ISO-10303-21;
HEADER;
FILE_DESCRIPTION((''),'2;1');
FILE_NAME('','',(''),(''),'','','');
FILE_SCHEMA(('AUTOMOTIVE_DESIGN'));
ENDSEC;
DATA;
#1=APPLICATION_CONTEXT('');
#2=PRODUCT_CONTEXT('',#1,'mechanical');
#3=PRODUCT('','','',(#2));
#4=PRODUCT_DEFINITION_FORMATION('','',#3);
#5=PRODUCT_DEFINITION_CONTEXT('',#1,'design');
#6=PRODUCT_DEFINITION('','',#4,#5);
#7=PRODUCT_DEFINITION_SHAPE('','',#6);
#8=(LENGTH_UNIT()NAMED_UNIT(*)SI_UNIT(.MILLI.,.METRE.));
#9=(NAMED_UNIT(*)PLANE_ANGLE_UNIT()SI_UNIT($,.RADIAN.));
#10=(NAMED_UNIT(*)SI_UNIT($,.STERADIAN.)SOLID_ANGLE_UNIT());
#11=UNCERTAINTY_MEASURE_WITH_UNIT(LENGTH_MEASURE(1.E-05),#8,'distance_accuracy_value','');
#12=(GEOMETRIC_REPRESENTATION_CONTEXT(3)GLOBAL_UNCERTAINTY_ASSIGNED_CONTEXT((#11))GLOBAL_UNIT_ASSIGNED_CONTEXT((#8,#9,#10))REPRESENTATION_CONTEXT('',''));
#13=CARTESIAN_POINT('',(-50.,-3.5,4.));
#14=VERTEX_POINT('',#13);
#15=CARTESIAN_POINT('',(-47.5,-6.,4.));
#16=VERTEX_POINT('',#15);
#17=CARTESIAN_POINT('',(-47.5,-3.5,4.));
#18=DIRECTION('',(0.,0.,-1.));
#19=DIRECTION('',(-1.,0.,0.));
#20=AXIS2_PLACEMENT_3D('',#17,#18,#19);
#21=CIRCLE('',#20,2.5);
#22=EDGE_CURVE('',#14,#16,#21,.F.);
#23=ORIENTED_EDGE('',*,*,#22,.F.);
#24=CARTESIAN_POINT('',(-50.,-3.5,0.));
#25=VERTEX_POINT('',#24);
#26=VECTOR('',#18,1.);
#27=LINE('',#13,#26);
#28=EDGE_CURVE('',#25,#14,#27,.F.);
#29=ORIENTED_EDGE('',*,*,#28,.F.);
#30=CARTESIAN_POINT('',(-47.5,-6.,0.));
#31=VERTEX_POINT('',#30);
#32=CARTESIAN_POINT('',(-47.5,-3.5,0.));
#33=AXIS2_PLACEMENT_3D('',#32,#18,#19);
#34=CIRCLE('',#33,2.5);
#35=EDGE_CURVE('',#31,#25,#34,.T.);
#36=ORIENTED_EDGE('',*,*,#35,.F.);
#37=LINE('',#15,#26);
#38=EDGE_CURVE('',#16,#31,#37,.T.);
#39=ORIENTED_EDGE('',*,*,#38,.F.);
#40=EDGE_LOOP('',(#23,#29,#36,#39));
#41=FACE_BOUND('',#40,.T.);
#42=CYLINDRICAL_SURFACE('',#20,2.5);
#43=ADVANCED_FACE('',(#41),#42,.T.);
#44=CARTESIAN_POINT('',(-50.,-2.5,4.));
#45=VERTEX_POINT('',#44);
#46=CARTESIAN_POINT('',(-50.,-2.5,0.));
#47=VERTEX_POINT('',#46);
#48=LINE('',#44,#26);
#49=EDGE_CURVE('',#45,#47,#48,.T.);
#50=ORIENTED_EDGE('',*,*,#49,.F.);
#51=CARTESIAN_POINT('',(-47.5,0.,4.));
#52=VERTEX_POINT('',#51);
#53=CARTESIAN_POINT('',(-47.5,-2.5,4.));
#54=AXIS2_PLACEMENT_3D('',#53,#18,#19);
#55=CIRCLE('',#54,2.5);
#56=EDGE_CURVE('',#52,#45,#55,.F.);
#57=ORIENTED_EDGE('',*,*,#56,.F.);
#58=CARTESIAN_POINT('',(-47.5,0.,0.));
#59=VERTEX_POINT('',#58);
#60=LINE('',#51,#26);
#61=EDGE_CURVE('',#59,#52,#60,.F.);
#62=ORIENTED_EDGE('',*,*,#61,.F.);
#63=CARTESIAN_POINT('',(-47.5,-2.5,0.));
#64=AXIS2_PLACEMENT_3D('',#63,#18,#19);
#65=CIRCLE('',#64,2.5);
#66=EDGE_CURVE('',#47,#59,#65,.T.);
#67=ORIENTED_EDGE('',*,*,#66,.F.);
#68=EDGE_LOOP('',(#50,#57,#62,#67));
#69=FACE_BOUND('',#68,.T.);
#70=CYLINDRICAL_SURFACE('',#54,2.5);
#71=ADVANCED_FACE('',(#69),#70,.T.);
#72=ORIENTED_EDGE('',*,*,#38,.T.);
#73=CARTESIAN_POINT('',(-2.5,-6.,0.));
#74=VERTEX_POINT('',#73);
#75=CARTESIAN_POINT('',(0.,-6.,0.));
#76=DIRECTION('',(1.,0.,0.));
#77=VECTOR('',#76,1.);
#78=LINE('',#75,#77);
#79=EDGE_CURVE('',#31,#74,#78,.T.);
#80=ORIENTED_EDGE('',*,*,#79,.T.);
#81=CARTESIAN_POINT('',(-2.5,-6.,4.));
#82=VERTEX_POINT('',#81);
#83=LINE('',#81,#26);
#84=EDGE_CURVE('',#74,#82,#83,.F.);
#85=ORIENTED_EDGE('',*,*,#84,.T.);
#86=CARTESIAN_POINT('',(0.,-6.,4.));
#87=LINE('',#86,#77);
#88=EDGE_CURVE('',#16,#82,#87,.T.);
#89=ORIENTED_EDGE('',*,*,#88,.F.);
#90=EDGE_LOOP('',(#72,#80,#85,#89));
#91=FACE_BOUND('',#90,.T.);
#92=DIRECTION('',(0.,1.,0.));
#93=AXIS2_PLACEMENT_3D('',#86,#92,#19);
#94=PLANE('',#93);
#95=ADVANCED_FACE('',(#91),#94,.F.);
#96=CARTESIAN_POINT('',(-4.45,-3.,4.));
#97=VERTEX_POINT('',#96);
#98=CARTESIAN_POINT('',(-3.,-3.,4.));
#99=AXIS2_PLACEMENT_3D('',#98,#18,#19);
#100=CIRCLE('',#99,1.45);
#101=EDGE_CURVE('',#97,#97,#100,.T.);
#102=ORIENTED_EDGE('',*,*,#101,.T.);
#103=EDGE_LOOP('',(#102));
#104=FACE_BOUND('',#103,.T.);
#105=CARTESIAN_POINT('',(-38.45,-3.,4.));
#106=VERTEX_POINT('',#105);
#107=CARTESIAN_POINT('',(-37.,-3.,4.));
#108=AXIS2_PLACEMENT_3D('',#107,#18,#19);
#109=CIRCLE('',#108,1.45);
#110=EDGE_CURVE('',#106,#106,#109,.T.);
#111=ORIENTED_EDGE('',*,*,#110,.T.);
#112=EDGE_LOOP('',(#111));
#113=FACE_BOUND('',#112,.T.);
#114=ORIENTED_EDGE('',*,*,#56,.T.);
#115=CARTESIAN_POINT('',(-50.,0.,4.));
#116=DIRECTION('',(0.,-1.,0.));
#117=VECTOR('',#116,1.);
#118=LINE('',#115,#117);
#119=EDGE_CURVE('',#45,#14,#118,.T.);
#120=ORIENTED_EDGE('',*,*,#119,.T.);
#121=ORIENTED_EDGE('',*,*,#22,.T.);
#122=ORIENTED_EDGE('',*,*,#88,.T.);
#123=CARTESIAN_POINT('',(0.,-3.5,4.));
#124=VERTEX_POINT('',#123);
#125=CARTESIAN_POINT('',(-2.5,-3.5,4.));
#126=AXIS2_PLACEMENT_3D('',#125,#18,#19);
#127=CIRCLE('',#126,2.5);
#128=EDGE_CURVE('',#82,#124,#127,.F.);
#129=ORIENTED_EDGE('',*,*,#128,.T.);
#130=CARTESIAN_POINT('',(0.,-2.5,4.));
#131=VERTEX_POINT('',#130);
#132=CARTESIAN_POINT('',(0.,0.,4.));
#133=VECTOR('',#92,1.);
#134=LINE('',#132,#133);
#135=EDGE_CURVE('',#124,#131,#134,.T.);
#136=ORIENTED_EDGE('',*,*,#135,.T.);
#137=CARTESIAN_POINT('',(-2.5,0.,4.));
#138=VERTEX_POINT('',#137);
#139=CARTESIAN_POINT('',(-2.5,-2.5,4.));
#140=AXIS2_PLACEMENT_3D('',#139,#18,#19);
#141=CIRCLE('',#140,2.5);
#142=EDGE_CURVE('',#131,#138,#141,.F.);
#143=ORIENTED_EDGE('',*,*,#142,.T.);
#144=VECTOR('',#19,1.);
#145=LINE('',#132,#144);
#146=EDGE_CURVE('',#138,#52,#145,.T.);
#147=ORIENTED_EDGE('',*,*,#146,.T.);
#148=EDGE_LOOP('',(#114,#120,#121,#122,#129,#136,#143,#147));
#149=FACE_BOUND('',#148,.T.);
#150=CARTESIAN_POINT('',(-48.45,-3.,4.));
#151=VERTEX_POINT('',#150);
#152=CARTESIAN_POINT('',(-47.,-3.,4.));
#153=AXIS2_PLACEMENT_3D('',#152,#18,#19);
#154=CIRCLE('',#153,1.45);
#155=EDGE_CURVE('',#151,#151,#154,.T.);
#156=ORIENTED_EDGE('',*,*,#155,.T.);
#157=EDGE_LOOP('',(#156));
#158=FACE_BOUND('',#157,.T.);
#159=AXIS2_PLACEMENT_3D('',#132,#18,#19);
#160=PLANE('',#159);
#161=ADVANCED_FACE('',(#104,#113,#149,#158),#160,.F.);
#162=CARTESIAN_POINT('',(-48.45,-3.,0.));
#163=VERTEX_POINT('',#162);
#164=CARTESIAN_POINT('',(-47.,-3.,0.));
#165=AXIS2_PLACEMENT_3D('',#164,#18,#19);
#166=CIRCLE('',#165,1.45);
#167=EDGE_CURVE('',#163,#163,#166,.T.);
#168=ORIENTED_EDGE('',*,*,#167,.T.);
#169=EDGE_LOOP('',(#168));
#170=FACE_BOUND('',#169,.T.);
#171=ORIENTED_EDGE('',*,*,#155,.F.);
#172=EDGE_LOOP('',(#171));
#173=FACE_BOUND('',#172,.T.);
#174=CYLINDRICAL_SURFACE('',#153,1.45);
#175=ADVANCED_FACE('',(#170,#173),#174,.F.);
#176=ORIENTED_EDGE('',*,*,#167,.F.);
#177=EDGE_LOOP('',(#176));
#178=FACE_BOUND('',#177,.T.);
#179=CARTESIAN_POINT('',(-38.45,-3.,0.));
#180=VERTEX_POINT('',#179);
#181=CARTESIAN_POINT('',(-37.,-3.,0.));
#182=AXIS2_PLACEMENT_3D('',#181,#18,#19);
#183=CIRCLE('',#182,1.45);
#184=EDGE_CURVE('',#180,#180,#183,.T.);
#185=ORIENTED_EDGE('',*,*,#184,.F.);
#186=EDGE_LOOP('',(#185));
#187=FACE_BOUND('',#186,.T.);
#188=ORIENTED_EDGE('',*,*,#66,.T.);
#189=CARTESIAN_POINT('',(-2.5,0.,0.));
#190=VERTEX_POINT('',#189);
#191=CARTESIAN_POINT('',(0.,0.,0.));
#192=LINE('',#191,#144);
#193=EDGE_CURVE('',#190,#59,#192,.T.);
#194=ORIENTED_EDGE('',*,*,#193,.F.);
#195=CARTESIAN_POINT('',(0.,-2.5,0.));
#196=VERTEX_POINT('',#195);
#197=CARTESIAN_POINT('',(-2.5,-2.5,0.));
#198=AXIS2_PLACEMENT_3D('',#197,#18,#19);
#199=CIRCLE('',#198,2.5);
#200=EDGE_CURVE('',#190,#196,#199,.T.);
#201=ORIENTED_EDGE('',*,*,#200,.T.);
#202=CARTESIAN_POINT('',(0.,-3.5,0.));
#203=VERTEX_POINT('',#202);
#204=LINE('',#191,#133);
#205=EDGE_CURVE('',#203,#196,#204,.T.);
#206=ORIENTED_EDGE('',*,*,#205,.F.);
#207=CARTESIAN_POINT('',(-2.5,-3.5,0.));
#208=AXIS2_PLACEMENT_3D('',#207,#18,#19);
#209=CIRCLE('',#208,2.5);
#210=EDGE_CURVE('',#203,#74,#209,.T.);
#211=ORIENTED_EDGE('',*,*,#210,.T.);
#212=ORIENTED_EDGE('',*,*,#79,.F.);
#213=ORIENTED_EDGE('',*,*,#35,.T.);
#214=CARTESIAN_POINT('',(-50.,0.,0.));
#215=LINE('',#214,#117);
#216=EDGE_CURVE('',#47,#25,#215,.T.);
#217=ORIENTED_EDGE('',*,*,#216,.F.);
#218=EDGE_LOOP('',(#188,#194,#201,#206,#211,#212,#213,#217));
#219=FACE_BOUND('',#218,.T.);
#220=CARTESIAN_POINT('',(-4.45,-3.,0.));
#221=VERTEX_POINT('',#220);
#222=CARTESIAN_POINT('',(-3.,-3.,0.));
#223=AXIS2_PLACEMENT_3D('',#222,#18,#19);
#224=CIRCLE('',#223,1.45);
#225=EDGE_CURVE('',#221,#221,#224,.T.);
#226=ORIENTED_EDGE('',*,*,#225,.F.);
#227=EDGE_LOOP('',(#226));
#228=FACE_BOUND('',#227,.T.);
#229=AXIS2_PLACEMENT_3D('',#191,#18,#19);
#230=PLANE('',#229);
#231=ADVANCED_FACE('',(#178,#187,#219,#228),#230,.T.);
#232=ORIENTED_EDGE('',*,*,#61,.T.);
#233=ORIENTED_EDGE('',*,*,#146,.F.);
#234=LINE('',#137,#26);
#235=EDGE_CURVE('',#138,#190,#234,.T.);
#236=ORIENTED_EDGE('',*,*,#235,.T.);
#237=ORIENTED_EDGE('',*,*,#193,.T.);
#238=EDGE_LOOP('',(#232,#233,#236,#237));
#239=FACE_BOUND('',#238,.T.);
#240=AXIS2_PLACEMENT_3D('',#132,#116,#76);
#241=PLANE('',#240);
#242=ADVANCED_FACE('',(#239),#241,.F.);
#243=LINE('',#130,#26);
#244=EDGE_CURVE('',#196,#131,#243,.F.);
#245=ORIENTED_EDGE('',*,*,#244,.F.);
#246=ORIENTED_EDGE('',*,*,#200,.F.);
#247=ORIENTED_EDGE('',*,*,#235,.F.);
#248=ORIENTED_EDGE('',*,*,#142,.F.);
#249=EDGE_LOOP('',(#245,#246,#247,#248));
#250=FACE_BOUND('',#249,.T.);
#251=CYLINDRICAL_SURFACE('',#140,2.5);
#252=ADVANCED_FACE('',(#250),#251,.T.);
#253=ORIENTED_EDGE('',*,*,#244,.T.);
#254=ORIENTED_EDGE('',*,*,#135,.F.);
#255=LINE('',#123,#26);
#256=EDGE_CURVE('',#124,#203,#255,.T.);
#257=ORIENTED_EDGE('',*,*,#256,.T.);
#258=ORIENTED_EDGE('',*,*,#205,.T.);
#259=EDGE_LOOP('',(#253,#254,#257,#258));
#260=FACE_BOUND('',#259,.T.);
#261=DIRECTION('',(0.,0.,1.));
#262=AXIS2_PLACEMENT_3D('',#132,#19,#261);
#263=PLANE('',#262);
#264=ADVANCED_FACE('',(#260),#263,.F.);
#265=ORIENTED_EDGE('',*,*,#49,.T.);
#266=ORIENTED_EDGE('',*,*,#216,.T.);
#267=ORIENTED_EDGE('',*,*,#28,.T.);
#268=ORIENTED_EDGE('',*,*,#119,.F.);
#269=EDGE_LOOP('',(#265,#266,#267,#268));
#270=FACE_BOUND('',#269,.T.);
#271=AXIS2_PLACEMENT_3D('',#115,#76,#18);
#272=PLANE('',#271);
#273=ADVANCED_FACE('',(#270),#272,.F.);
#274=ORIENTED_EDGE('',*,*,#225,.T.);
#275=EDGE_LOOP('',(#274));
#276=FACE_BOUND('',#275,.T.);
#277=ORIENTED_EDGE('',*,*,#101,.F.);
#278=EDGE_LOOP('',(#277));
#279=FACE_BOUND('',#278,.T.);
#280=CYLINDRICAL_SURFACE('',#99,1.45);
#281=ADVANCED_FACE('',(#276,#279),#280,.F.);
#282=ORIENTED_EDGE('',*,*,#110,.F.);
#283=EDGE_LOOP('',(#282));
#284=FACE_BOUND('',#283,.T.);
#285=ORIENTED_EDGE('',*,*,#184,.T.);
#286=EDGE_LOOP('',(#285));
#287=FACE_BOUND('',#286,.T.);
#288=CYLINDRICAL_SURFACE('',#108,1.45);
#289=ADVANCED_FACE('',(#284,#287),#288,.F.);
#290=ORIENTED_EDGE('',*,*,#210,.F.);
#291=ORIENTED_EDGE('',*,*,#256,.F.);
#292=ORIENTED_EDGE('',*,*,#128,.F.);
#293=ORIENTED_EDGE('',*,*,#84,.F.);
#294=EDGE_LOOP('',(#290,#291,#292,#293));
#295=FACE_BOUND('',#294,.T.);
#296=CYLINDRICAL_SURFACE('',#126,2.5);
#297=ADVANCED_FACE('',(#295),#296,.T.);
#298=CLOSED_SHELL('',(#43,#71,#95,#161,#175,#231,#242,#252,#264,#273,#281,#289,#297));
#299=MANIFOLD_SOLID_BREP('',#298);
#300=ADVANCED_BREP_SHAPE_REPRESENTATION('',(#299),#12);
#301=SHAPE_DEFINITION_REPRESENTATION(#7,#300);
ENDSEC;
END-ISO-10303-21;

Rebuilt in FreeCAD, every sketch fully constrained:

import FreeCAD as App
import Part
import Sketcher

V = App.Vector


def edges_at(feature, points):
    """Names of the edges that pass closest to the given points."""
    edges = feature.Shape.Edges
    near = lambda p: min(range(len(edges)), key=lambda i: edges[i].distToShape(Part.Vertex(*p))[0])
    return sorted({f"Edge{near(p) + 1}" for p in points})

doc = App.newDocument("Part")
params = doc.addObject("Spreadsheet::Sheet", "Params")
for row, (alias, value) in enumerate([
    ("sketch1_width", "50 mm"),
    ("sketch1_height", "6 mm"),
    ("pad1_length", "4 mm"),
    ("sketch2_diameter", "2.9 mm"),
    ("fillet_radius", "2.5 mm"),
    ("sketch3_diameter", "2.9 mm"),
], start=1):
    params.set(f"A{row}", alias)
    params.set(f"B{row}", "=" + value)
    params.setAlias(f"B{row}", alias)

body = doc.addObject("PartDesign::Body", "Body")

# Sketch on XY plane
sketch1 = doc.addObject("Sketcher::SketchObject", "Sketch")
body.addObject(sketch1)
sketch1.AttachmentSupport = (doc.XY_Plane, [""])
sketch1.MapMode = "FlatFace"
sketch1.addGeometry([
    Part.LineSegment(V(-50, 0, 0), V(-50, -6, 0)),
    Part.LineSegment(V(-50, -6, 0), V(0, -6, 0)),
    Part.LineSegment(V(0, -6, 0), V(0, 0, 0)),
    Part.LineSegment(V(0, 0, 0), V(-50, 0, 0)),
], False)
sketch1.addConstraint([
    Sketcher.Constraint("Coincident", 0, 2, 1, 1),
    Sketcher.Constraint("Coincident", 1, 2, 2, 1),
    Sketcher.Constraint("Coincident", 2, 2, 3, 1),
    Sketcher.Constraint("Coincident", 3, 2, 0, 1),
    Sketcher.Constraint("Vertical", 0),
    Sketcher.Constraint("Horizontal", 1),
    Sketcher.Constraint("Vertical", 2),
    Sketcher.Constraint("Horizontal", 3),
    Sketcher.Constraint("Coincident", 2, 2, -1, 1),
    Sketcher.Constraint("DistanceX", 1, 1, 1, 2, 50.0),
    Sketcher.Constraint("DistanceY", 0, 2, 0, 1, 6.0),
])
sketch1.setExpression("Constraints[9]", "Params.sketch1_width")
sketch1.setExpression("Constraints[10]", "Params.sketch1_height")
pad1 = doc.addObject("PartDesign::Pad", "Pad")
body.addObject(pad1)
pad1.Profile = sketch1
pad1.setExpression("Length", "Params.pad1_length")

# Sketch on XY plane
sketch2 = doc.addObject("Sketcher::SketchObject", "Sketch001")
body.addObject(sketch2)
sketch2.AttachmentSupport = (doc.XY_Plane, [""])
sketch2.MapMode = "FlatFace"
sketch2.addGeometry([
    Part.Circle(V(-3, -3, 0), V(0, 0, 1), 1.4),
    Part.Circle(V(-37, -3, 0), V(0, 0, 1), 1.4),
], False)
sketch2.addConstraint([
    Sketcher.Constraint("Equal", 0, 1),
    Sketcher.Constraint("Horizontal", 0, 3, 1, 3),
    Sketcher.Constraint("Diameter", 0, 2.9),
    Sketcher.Constraint("DistanceX", 0, 3, -1, 1, 3.0),
    Sketcher.Constraint("DistanceY", 0, 3, -1, 1, 3.0),
    Sketcher.Constraint("DistanceX", 1, 3, -1, 1, 37.0),
])
sketch2.setExpression("Constraints[2]", "Params.sketch2_diameter")
pocket1 = doc.addObject("PartDesign::Pocket", "Pocket")
body.addObject(pocket1)
pocket1.Profile = sketch2
pocket1.Type = "ThroughAll"
pocket1.Reversed = True
doc.recompute()

fillet = doc.addObject("PartDesign::Fillet", "Fillet")
body.addObject(fillet)
fillet.Base = (pocket1, edges_at(pocket1, [
    (0, -6, 2),
    (-50, -6, 2),
    (-50, 0, 2),
    (0, 0, 2),
]))
fillet.setExpression("Radius", "Params.fillet_radius")

# Sketch on XY plane
sketch3 = doc.addObject("Sketcher::SketchObject", "Sketch002")
body.addObject(sketch3)
sketch3.AttachmentSupport = (doc.XY_Plane, [""])
sketch3.MapMode = "FlatFace"
sketch3.addGeometry(Part.Circle(V(-47, -3, 0), V(0, 0, 1), 1.4), False)
sketch3.addConstraint([
    Sketcher.Constraint("Diameter", 0, 2.9),
    Sketcher.Constraint("DistanceX", 0, 3, -1, 1, 47.0),
    Sketcher.Constraint("DistanceY", 0, 3, -1, 1, 3.0),
])
sketch3.setExpression("Constraints[0]", "Params.sketch3_diameter")
pocket2 = doc.addObject("PartDesign::Pocket", "Pocket001")
body.addObject(pocket2)
pocket2.Profile = sketch3
pocket2.Type = "ThroughAll"
pocket2.Reversed = True

doc.recompute()
